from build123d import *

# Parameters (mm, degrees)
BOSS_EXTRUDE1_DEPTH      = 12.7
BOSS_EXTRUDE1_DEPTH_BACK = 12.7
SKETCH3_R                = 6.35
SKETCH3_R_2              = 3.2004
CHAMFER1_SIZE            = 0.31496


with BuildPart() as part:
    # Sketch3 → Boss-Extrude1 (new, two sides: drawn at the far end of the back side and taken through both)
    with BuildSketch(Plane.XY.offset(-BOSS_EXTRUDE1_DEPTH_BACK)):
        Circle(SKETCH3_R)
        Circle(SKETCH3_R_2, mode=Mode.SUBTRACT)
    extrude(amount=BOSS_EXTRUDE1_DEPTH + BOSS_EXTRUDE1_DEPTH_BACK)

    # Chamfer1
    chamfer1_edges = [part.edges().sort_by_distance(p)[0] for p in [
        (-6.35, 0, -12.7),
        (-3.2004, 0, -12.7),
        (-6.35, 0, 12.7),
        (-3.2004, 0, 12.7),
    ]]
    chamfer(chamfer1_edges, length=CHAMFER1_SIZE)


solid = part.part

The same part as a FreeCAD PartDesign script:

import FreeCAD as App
import Part
import Sketcher

V = App.Vector
Q = App.Units.Quantity


def edges_at(feature, points):
    """Names of the edges that pass closest to the given points."""
    edges = feature.Shape.Edges
    near = lambda p: min(range(len(edges)), key=lambda i: edges[i].distToShape(Part.Vertex(*p))[0])
    return sorted({f"Edge{near(p) + 1}" for p in points})

doc = App.newDocument("Part")
body = doc.addObject("PartDesign::Body", "Body")

# Sketch on XY plane
sketch1 = body.newObject("Sketcher::SketchObject", "Sketch")
sketch1.AttachmentSupport = (doc.getObject("XY_Plane"), [""])
sketch1.MapMode = "FlatFace"
sketch1.addGeometry([
    Part.Circle(V(0, 0, 0), V(0, 0, 1), 6.35),
    Part.Circle(V(0, 0, 0), V(0, 0, 1), 3.2004),
], False)
sketch1.addConstraint([
    Sketcher.Constraint("Coincident", 0, 3, -1, 1),
    Sketcher.Constraint("Coincident", 1, 3, -1, 1),
    Sketcher.Constraint("Diameter", 0, Q("0.5 in")),
    Sketcher.Constraint("Diameter", 1, Q("0.252 in")),
])
pad1 = body.newObject("PartDesign::Pad", "Pad")
pad1.Profile = sketch1
pad1.Type = "TwoLengths"
pad1.Length = Q("0.5 in")
pad1.Length2 = Q("0.5 in")
doc.recompute()

chamfer = body.newObject("PartDesign::Chamfer", "Chamfer")
chamfer.Base = (pad1, edges_at(pad1, [
    (-6.35, 0, -12.7),
    (-3.2, 0, -12.7),
    (-6.35, 0, 12.7),
    (-3.2, 0, 12.7),
]))
chamfer.Size = Q("0.0124 in")

doc.recompute()
